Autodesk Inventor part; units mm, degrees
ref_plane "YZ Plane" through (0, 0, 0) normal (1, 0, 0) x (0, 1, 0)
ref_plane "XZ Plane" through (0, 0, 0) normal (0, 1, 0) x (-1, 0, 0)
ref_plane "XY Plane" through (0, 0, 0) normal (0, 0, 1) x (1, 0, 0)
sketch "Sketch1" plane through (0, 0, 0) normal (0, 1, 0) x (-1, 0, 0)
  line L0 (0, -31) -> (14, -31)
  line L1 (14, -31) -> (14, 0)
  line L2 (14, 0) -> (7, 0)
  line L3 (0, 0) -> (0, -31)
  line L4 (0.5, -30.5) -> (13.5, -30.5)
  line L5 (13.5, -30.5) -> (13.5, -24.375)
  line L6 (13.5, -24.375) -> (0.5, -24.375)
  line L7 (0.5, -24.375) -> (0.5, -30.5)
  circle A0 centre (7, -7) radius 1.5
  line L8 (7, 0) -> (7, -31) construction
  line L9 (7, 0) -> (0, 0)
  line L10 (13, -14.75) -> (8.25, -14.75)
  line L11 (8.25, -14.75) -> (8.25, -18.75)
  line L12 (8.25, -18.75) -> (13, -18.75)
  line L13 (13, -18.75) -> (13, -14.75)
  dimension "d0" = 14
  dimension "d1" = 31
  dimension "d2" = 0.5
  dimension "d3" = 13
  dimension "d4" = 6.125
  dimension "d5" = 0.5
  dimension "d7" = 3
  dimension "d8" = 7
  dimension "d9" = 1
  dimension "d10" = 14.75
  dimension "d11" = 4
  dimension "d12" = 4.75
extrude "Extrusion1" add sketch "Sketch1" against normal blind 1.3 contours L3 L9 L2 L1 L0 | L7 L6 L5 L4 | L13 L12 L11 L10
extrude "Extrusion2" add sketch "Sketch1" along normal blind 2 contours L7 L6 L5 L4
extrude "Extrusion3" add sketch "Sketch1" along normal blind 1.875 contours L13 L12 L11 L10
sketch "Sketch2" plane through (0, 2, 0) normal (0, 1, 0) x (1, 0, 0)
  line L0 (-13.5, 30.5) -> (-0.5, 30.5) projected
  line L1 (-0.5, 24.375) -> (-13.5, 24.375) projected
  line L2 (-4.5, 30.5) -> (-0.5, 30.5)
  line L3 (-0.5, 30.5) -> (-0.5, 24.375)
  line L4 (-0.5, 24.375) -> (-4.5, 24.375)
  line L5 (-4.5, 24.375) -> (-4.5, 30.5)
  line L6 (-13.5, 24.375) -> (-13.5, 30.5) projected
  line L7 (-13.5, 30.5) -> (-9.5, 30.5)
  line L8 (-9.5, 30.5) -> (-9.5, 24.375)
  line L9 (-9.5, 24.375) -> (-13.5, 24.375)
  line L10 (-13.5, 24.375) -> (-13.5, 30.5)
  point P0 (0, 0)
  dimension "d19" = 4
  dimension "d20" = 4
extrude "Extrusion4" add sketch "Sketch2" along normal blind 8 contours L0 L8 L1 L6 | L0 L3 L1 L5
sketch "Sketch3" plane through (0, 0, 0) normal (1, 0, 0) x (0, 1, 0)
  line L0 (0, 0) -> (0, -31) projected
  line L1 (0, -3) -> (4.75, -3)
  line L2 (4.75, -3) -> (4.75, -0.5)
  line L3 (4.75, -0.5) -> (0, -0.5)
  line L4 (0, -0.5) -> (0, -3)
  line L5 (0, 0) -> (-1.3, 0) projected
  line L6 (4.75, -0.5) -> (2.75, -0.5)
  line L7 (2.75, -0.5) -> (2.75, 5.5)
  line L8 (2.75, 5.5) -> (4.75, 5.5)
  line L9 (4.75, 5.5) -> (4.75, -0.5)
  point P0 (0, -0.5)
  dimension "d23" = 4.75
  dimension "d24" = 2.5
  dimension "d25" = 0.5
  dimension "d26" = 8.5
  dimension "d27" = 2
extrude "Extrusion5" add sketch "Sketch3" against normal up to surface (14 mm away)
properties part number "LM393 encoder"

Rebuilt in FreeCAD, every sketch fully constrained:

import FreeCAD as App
import Part
import Sketcher
from FreeCAD import Vector


def add_polygon(sketch, points):
    """Adds a closed chain of lines whose ends are joined by coincident constraints."""
    first, n = sketch.GeometryCount, len(points)
    for a, b in zip(points, points[1:] + points[:1]):
        sketch.addGeometry(Part.LineSegment(App.Vector(*a, 0), App.Vector(*b, 0)), False)
    for i in range(n):
        sketch.addConstraint(Sketcher.Constraint("Coincident", first + i, 2, first + (i + 1) % n, 1))

doc = App.newDocument("Part")
body = doc.addObject("PartDesign::Body", "Body")

# Sketch on XZ plane
sketch1 = body.newObject("Sketcher::SketchObject", "Sketch")
sketch1.AttachmentSupport = (doc.getObject("XZ_Plane"), [""])
sketch1.MapMode = "FlatFace"
add_polygon(sketch1, [(0, 0), (0, -31), (-14, -31), (-14, 0)])  # lines 0-3
sketch1.addGeometry(Part.Circle(Vector(-7, -7, 0), Vector(0, 0, 1), 1.5), False)  # 4
sketch1.addConstraint([
    Sketcher.Constraint("Vertical", 0),
    Sketcher.Constraint("Horizontal", 1),
    Sketcher.Constraint("Vertical", 2),
    Sketcher.Constraint("Horizontal", 3),
    Sketcher.Constraint("Coincident", 3, 2, -1, 1),
    Sketcher.Constraint("Diameter", 4, 3.0),
    Sketcher.Constraint("DistanceX", 1, 2, 1, 1, 14.0),
    Sketcher.Constraint("DistanceY", 0, 2, 0, 1, 31.0),
    Sketcher.Constraint("DistanceX", 4, 3, -1, 1, 7.0),
    Sketcher.Constraint("DistanceY", 4, 3, -1, 1, 7.0),
])
pad1 = body.newObject("PartDesign::Pad", "Pad")
pad1.Profile = sketch1
pad1.Length = 1.3

# Sketch on XZ plane
sketch2 = body.newObject("Sketcher::SketchObject", "Sketch001")
sketch2.AttachmentSupport = (doc.getObject("XZ_Plane"), [""])
sketch2.MapMode = "FlatFace"
add_polygon(sketch2, [(0, -24), (0, -30), (-14, -30), (-14, -24)])  # lines 0-3
sketch2.addConstraint([
    Sketcher.Constraint("Vertical", 0),
    Sketcher.Constraint("Horizontal", 1),
    Sketcher.Constraint("Vertical", 2),
    Sketcher.Constraint("Horizontal", 3),
    Sketcher.Constraint("DistanceX", 1, 2, 1, 1, 13.0),
    Sketcher.Constraint("DistanceX", 0, 2, -1, 1, 0.5),
    Sketcher.Constraint("DistanceY", 0, 2, 0, 1, 6.125),
    Sketcher.Constraint("DistanceY", 0, 2, -1, 1, 30.5),
])
pad2 = body.newObject("PartDesign::Pad", "Pad001")
pad2.Profile = sketch2
pad2.Length = 2
pad2.Reversed = True

# Sketch on XZ plane
sketch3 = body.newObject("Sketcher::SketchObject", "Sketch002")
sketch3.AttachmentSupport = (doc.getObject("XZ_Plane"), [""])
sketch3.MapMode = "FlatFace"
add_polygon(sketch3, [(-13, -18.8), (-13, -14.8), (-8.2, -14.8), (-8.2, -18.8)])  # lines 0-3
sketch3.addConstraint([
    Sketcher.Constraint("Vertical", 0),
    Sketcher.Constraint("Horizontal", 1),
    Sketcher.Constraint("Vertical", 2),
    Sketcher.Constraint("Horizontal", 3),
    Sketcher.Constraint("DistanceY", 0, 1, 0, 2, 4.0),
    Sketcher.Constraint("DistanceX", 0, 2, -1, 1, 13.0),
    Sketcher.Constraint("DistanceX", 1, 1, 1, 2, 4.75),
    Sketcher.Constraint("DistanceY", 0, 2, -1, 1, 14.75),
])
pad3 = body.newObject("PartDesign::Pad", "Pad002")
pad3.Profile = sketch3
pad3.Length = 1.875
pad3.Reversed = True

# Sketch on XZ plane
sketch4 = body.newObject("Sketcher::SketchObject", "Sketch003")
sketch4.AttachmentSupport = (doc.getObject("XZ_Plane"), [""])
sketch4.MapMode = "FlatFace"
sketch4.AttachmentOffset = App.Placement(Vector(0, 0, -2), App.Rotation())
add_polygon(sketch4, [(-9.5, -30.5), (-13.5, -30.5), (-13.5, -24.4), (-9.5, -24.4)])  # lines 0-3
add_polygon(sketch4, [(-0.5, -30.5), (-4.5, -30.5), (-4.5, -24.4), (-0.5, -24.4)])  # lines 4-7
sketch4.addConstraint([
    Sketcher.Constraint("Horizontal", 0),
    Sketcher.Constraint("Vertical", 1),
    Sketcher.Constraint("Horizontal", 2),
    Sketcher.Constraint("Vertical", 3),
    Sketcher.Constraint("Horizontal", 4),
    Sketcher.Constraint("Vertical", 5),
    Sketcher.Constraint("Horizontal", 6),
    Sketcher.Constraint("Vertical", 7),
    Sketcher.Constraint("Horizontal", 3, 2, 4, 2),
    Sketcher.Constraint("Horizontal", 2, 2, 5, 2),
    Sketcher.Constraint("Equal", 2, 4),
    Sketcher.Constraint("DistanceX", 0, 2, 0, 1, 4.0),
    Sketcher.Constraint("DistanceX", 3, 2, 4, 2, 5.0),
    Sketcher.Constraint("DistanceX", 0, 2, -1, 1, 13.5),
    Sketcher.Constraint("DistanceY", 0, 2, -1, 1, 30.5),
    Sketcher.Constraint("DistanceY", 1, 1, 1, 2, 6.125),
])
pad4 = body.newObject("PartDesign::Pad", "Pad003")
pad4.Profile = sketch4
pad4.Length = 8
pad4.Reversed = True

# Sketch on YZ plane
sketch5 = body.newObject("Sketcher::SketchObject", "Sketch004")
sketch5.AttachmentSupport = (doc.getObject("YZ_Plane"), [""])
sketch5.MapMode = "FlatFace"
add_polygon(sketch5, [(2.8, -0.5), (0, -0.5), (0, -3), (4.8, -3), (4.8, 5.5), (2.8, 5.5)])  # lines 0-5
sketch5.addConstraint([
    Sketcher.Constraint("Horizontal", 0),
    Sketcher.Constraint("Vertical", 1),
    Sketcher.Constraint("Horizontal", 2),
    Sketcher.Constraint("Vertical", 3),
    Sketcher.Constraint("Horizontal", 4),
    Sketcher.Constraint("Vertical", 5),
    Sketcher.Constraint("PointOnObject", 0, 2, -2),
    Sketcher.Constraint("DistanceX", 4, 2, 4, 1, 2.0),
    Sketcher.Constraint("DistanceY", 1, 2, 1, 1, 2.5),
    Sketcher.Constraint("DistanceY", 3, 1, 3, 2, 8.5),
    Sketcher.Constraint("DistanceX", 2, 1, 2, 2, 4.75),
    Sketcher.Constraint("DistanceY", 0, 2, -1, 1, 0.5),
])
pad5 = body.newObject("PartDesign::Pad", "Pad004")
pad5.Profile = sketch5
pad5.Length = 14
pad5.Reversed = True

doc.recompute()
